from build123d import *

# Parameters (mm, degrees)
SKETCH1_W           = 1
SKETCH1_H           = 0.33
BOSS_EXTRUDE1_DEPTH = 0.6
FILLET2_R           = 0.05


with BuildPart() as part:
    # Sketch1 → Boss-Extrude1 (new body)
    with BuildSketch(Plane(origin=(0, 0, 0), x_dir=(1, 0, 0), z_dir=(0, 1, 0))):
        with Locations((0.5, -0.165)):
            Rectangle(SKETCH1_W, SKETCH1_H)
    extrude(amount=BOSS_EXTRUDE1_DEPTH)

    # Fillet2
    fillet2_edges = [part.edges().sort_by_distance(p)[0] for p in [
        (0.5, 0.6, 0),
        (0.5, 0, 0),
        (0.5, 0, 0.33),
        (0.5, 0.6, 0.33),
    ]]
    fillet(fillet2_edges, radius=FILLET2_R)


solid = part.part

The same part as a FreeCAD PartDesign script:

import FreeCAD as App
import Part
import Sketcher
from FreeCAD import Vector


def edges_at(feature, points):
    """Names of the edges that pass closest to the given points."""
    edges = feature.Shape.Edges
    near = lambda p: min(range(len(edges)), key=lambda i: edges[i].distToShape(Part.Vertex(*p))[0])
    return sorted({f"Edge{near(p) + 1}" for p in points})


def add_polygon(sketch, points):
    """Adds a closed chain of lines whose ends are joined by coincident constraints."""
    first, n = sketch.GeometryCount, len(points)
    for a, b in zip(points, points[1:] + points[:1]):
        sketch.addGeometry(Part.LineSegment(App.Vector(*a, 0), App.Vector(*b, 0)), False)
    for i in range(n):
        sketch.addConstraint(Sketcher.Constraint("Coincident", first + i, 2, first + (i + 1) % n, 1))

doc = App.newDocument("Part")
body = doc.addObject("PartDesign::Body", "Body")

# Sketch on XZ plane
sketch1 = body.newObject("Sketcher::SketchObject", "Sketch")
sketch1.AttachmentSupport = (doc.getObject("XZ_Plane"), [""])
sketch1.MapMode = "FlatFace"
add_polygon(sketch1, [(0, 0), (0, 0.33), (1, 0.33), (1, 0)])  # lines 0-3
sketch1.addConstraint([
    Sketcher.Constraint("Vertical", 0),
    Sketcher.Constraint("Horizontal", 1),
    Sketcher.Constraint("Vertical", 2),
    Sketcher.Constraint("Horizontal", 3),
    Sketcher.Constraint("Coincident", 3, 2, -1, 1),
    Sketcher.Constraint("DistanceX", 1, 1, 1, 2, 1.0),
    Sketcher.Constraint("DistanceY", 0, 1, 0, 2, 0.33),
])
pad1 = body.newObject("PartDesign::Pad", "Pad")
pad1.Profile = sketch1
pad1.Length = 0.6
pad1.Reversed = True
doc.recompute()

fillet = body.newObject("PartDesign::Fillet", "Fillet")
fillet.Base = (pad1, edges_at(pad1, [
    (0.5, 0.6, 0),
    (0.5, 0, 0),
    (0.5, 0, 0.33),
    (0.5, 0.6, 0.33),
]))
fillet.Radius = 0.05

doc.recompute()
